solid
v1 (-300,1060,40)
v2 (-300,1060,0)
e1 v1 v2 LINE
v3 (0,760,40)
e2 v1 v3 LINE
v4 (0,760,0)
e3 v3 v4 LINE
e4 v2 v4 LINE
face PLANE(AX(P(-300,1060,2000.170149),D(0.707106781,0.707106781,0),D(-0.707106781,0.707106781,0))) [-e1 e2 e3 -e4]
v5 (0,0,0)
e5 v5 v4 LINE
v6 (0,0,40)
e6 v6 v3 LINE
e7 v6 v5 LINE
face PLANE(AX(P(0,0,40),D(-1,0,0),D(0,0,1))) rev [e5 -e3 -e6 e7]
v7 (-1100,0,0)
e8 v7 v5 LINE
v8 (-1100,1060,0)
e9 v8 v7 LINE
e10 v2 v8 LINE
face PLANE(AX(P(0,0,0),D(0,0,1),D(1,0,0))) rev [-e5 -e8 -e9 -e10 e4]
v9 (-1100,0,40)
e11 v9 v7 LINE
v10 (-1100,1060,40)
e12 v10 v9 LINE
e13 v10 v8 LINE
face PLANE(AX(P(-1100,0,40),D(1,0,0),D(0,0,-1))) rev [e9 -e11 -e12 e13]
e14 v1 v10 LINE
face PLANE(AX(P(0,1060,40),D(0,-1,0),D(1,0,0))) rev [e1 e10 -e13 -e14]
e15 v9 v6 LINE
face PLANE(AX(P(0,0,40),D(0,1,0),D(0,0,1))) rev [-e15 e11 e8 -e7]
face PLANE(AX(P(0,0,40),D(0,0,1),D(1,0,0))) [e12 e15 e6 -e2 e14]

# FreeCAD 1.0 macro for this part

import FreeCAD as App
import Part
import Sketcher

V = App.Vector
Q = App.Units.Quantity


def add_polygon(sketch, points):
    """Adds a closed chain of lines whose ends are joined by coincident constraints."""
    first, n = sketch.GeometryCount, len(points)
    for a, b in zip(points, points[1:] + points[:1]):
        sketch.addGeometry(Part.LineSegment(App.Vector(*a, 0), App.Vector(*b, 0)), False)
    for i in range(n):
        sketch.addConstraint(Sketcher.Constraint("Coincident", first + i, 2, first + (i + 1) % n, 1))

doc = App.newDocument("Part")
params = doc.addObject("Spreadsheet::Sheet", "Params")
for row, (alias, value) in enumerate([
    ("sketch1_width", "1100 mm"),
    ("sketch1_height", "1060 mm"),
    ("pad1_length", "40 mm"),
], start=1):
    params.set(f"A{row}", alias)
    params.set(f"B{row}", "=" + value)
    params.setAlias(f"B{row}", alias)

body = doc.addObject("PartDesign::Body", "Body")

# Sketch on XY plane
sketch1 = doc.addObject("Sketcher::SketchObject", "Sketch")
body.addObject(sketch1)
sketch1.AttachmentSupport = (doc.XY_Plane, [""])
sketch1.MapMode = "FlatFace"
add_polygon(sketch1, [(-1100, 1060), (-1100, 0), (0, 0), (0, 1060)])  # lines 0-3
sketch1.addConstraint([
    Sketcher.Constraint("Vertical", 0),
    Sketcher.Constraint("Horizontal", 1),
    Sketcher.Constraint("Vertical", 2),
    Sketcher.Constraint("Horizontal", 3),
    Sketcher.Constraint("Coincident", 1, 2, -1, 1),
    Sketcher.Constraint("DistanceX", 1, 1, 1, 2, 1100.0),
    Sketcher.Constraint("DistanceY", 0, 2, 0, 1, 1060.0),
])
sketch1.setExpression("Constraints[9]", "Params.sketch1_width")
sketch1.setExpression("Constraints[10]", "Params.sketch1_height")
pad1 = doc.addObject("PartDesign::Pad", "Pad")
body.addObject(pad1)
pad1.Profile = sketch1
pad1.setExpression("Length", "Params.pad1_length")

# Sketch on XY plane
sketch2 = doc.addObject("Sketcher::SketchObject", "Sketch001")
body.addObject(sketch2)
sketch2.AttachmentSupport = (doc.XY_Plane, [""])
sketch2.MapMode = "FlatFace"
sketch2.AttachmentOffset = App.Placement(V(0, 0, 40), App.Rotation())
add_polygon(sketch2, [(-2197.890996, 2957.890996), (1897.890996, -1137.890996), (5693.672987, 2657.890996), (1597.890996, 6753.672987)])  # lines 0-3
sketch2.addConstraint([
    Sketcher.Constraint("Perpendicular", 0, 1),
    Sketcher.Constraint("Perpendicular", 1, 2),
    Sketcher.Constraint("Perpendicular", 2, 3),
    Sketcher.Constraint("Angle", 0, Q("-45 deg")),
    Sketcher.Constraint("DistanceX", 2, 2, 0, 2, 300.0),
    Sketcher.Constraint("Distance", 0, 5792.310441),
    Sketcher.Constraint("DistanceX", -1, 1, 0, 2, 1897.890996),
    Sketcher.Constraint("DistanceY", 0, 2, -1, 1, 1137.890996),
])
pocket1 = doc.addObject("PartDesign::Pocket", "Pocket")
body.addObject(pocket1)
pocket1.Profile = sketch2
pocket1.Type = "ThroughAll"
pocket1.Midplane = True

doc.recompute()
